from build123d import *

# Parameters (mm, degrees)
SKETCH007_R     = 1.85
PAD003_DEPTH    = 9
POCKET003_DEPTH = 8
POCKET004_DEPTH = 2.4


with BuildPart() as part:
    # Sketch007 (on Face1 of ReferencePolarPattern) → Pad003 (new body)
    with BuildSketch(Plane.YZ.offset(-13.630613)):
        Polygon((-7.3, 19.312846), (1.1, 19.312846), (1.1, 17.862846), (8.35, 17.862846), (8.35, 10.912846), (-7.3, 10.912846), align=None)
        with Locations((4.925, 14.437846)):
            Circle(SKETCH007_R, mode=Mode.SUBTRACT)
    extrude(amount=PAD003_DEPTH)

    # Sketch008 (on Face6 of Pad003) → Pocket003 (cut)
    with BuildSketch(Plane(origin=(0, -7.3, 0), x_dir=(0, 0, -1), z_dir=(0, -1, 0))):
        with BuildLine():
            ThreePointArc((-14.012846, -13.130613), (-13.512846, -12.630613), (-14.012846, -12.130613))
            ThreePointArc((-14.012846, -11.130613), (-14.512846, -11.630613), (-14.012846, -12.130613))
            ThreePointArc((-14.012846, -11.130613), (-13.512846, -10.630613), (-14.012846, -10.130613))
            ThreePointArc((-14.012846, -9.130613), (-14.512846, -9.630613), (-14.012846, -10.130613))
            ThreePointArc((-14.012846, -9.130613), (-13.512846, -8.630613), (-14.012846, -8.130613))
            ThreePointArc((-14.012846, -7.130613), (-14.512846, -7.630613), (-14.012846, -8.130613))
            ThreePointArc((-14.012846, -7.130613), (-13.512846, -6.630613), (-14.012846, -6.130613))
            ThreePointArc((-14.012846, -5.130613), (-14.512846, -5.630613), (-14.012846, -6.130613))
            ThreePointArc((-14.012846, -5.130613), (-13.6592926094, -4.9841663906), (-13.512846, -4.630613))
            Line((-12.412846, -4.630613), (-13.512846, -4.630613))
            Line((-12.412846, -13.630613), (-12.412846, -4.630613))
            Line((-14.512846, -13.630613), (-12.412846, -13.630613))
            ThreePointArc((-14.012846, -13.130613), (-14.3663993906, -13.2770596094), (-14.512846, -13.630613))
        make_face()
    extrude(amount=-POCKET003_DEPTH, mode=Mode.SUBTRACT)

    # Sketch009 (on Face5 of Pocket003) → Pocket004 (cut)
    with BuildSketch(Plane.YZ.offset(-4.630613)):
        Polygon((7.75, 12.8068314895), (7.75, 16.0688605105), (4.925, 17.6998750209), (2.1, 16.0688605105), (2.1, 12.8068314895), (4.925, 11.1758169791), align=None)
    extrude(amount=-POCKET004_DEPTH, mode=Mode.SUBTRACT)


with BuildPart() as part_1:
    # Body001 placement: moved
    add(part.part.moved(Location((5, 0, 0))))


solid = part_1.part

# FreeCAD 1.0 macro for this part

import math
import FreeCAD as App
import Part
import Sketcher

V = App.Vector
Q = App.Units.Quantity

doc = App.newDocument("Part")
body = doc.addObject("PartDesign::Body", "Body")

# Sketch on YZ plane
sketch1 = doc.addObject("Sketcher::SketchObject", "Sketch")
body.addObject(sketch1)
sketch1.AttachmentSupport = (doc.YZ_Plane, [""])
sketch1.MapMode = "FlatFace"
sketch1.AttachmentOffset = App.Placement(V(0, 0, -13.630613), App.Rotation())
sketch1.addGeometry([
    Part.LineSegment(V(1.1, 19.3, 0), V(-7.3, 19.3, 0)),  # 0
    Part.LineSegment(V(-7.3, 19.3, 0), V(-7.3, 10.9, 0)),  # 1
    Part.LineSegment(V(-7.3, 10.9, 0), V(8.3, 10.9, 0)),  # 2
    Part.LineSegment(V(8.3, 10.9, 0), V(8.3, 17.9, 0)),  # 3
    Part.LineSegment(V(8.3, 17.9, 0), V(1.1, 17.9, 0)),  # 4
    Part.LineSegment(V(1.1, 17.9, 0), V(1.1, 19.3, 0)),  # 5
    Part.Circle(V(4.9, 14.4, 0), V(0, 0, 1), 1.9),  # 6
], False)
sketch1.addConstraint([
    Sketcher.Constraint("Coincident", 0, 2, 1, 1),
    Sketcher.Constraint("Coincident", 1, 2, 2, 1),
    Sketcher.Constraint("Coincident", 2, 2, 3, 1),
    Sketcher.Constraint("Coincident", 3, 2, 4, 1),
    Sketcher.Constraint("Coincident", 4, 2, 5, 1),
    Sketcher.Constraint("Coincident", 5, 2, 0, 1),
    Sketcher.Constraint("Horizontal", 0),
    Sketcher.Constraint("Vertical", 1),
    Sketcher.Constraint("Horizontal", 2),
    Sketcher.Constraint("Vertical", 3),
    Sketcher.Constraint("Horizontal", 4),
    Sketcher.Constraint("Vertical", 5),
    Sketcher.Constraint("Equal", 0, 1),
    Sketcher.Constraint("Diameter", 6, Q("3.7 mm")),
    Sketcher.Constraint("DistanceX", 0, 2, 0, 1, Q("8.4 mm")),
    Sketcher.Constraint("DistanceX", 2, 1, 2, 2, Q("15.65 mm")),
    Sketcher.Constraint("DistanceY", 3, 1, 3, 2, Q("6.95 mm")),
    Sketcher.Constraint("DistanceX", 0, 2, -1, 1, Q("7.3 mm")),
    Sketcher.Constraint("DistanceX", -1, 1, 6, 3, Q("4.925 mm")),
    Sketcher.Constraint("DistanceY", 6, 3, 0, 2, Q("4.875 mm")),
    Sketcher.Constraint("DistanceY", -1, 1, 6, 3, Q("14.437846 mm")),
])
pad1 = doc.addObject("PartDesign::Pad", "Pad")
body.addObject(pad1)
pad1.Profile = sketch1
pad1.Length = 9

# Sketch on XZ plane
sketch2 = doc.addObject("Sketcher::SketchObject", "Sketch001")
body.addObject(sketch2)
sketch2.AttachmentSupport = (doc.XZ_Plane, [""])
sketch2.MapMode = "FlatFace"
sketch2.AttachmentOffset = App.Placement(V(0, 0, 7.3), App.Rotation())
sketch2.addGeometry([
    Part.ArcOfCircle(Part.Circle(V(-12.6, 14, 0), V(0, 0, 1), 0.5), math.radians(180), math.radians(360)),  # 0
    Part.ArcOfCircle(Part.Circle(V(-13.6, 14, 0), V(0, 0, 1), 0.5), math.radians(0), math.radians(90)),  # 1
    Part.LineSegment(V(-13.6, 14.5, 0), V(-13.6, 12.4, 0)),  # 2
    Part.LineSegment(V(-13.6, 12.4, 0), V(-4.6, 12.4, 0)),  # 3
    Part.LineSegment(V(-4.6, 12.4, 0), V(-4.6, 13.5, 0)),  # 4
    Part.ArcOfCircle(Part.Circle(V(-4.6, 14, 0), V(0, 0, 1), 0.5), math.radians(180), math.radians(270)),  # 5
    Part.ArcOfCircle(Part.Circle(V(-5.6, 14, 0), V(0, 0, 1), 0.5), math.radians(0), math.radians(180)),  # 6
    Part.ArcOfCircle(Part.Circle(V(-6.6, 14, 0), V(0, 0, 1), 0.5), math.radians(180), math.radians(360)),  # 7
    Part.ArcOfCircle(Part.Circle(V(-7.6, 14, 0), V(0, 0, 1), 0.5), math.radians(0), math.radians(180)),  # 8
    Part.ArcOfCircle(Part.Circle(V(-8.6, 14, 0), V(0, 0, 1), 0.5), math.radians(180), math.radians(360)),  # 9
    Part.ArcOfCircle(Part.Circle(V(-9.6, 14, 0), V(0, 0, 1), 0.5), math.radians(0), math.radians(180)),  # 10
    Part.ArcOfCircle(Part.Circle(V(-10.6, 14, 0), V(0, 0, 1), 0.5), math.radians(180), math.radians(360)),  # 11
    Part.ArcOfCircle(Part.Circle(V(-11.6, 14, 0), V(0, 0, 1), 0.5), math.radians(0), math.radians(180)),  # 12
], False)
sketch2.addConstraint([
    Sketcher.Constraint("Tangent", 0, 1, 1, 1),
    Sketcher.Constraint("Coincident", 1, 2, 2, 1),
    Sketcher.Constraint("Coincident", 2, 2, 3, 1),
    Sketcher.Constraint("Coincident", 3, 2, 4, 1),
    Sketcher.Constraint("Coincident", 4, 2, 5, 2),
    Sketcher.Constraint("Tangent", 5, 1, 6, 1),
    Sketcher.Constraint("Tangent", 6, 2, 7, 2),
    Sketcher.Constraint("Tangent", 7, 1, 8, 1),
    Sketcher.Constraint("Tangent", 8, 2, 9, 2),
    Sketcher.Constraint("Tangent", 9, 1, 10, 1),
    Sketcher.Constraint("Tangent", 10, 2, 11, 2),
    Sketcher.Constraint("Tangent", 11, 1, 12, 1),
    Sketcher.Constraint("Tangent", 12, 2, 0, 2),
    Sketcher.Constraint("Vertical", 2),
    Sketcher.Constraint("Horizontal", 3),
    Sketcher.Constraint("Vertical", 4),
    Sketcher.Constraint("Equal", 0, 1),
    Sketcher.Constraint("Equal", 1, 5),
    Sketcher.Constraint("Equal", 5, 6),
    Sketcher.Constraint("Equal", 6, 7),
    Sketcher.Constraint("Equal", 7, 8),
    Sketcher.Constraint("Equal", 8, 9),
    Sketcher.Constraint("Equal", 9, 10),
    Sketcher.Constraint("Equal", 10, 11),
    Sketcher.Constraint("Equal", 11, 12),
    Sketcher.Constraint("Horizontal", 0, 3, 1, 3),
    Sketcher.Constraint("Horizontal", 1, 3, 5, 3),
    Sketcher.Constraint("Horizontal", 5, 3, 6, 3),
    Sketcher.Constraint("Horizontal", 6, 3, 7, 3),
    Sketcher.Constraint("Horizontal", 7, 3, 8, 3),
    Sketcher.Constraint("Horizontal", 8, 3, 9, 3),
    Sketcher.Constraint("Horizontal", 9, 3, 10, 3),
    Sketcher.Constraint("Horizontal", 10, 3, 11, 3),
    Sketcher.Constraint("Horizontal", 11, 3, 12, 3),
    Sketcher.Constraint("Vertical", 5, 3, 3, 2),
    Sketcher.Constraint("Radius", 0, Q("0.5 mm")),
    Sketcher.Constraint("DistanceX", 3, 1, 3, 2, Q("9 mm")),
    Sketcher.Constraint("DistanceY", 2, 2, 2, 1, Q("2.1 mm")),
    Sketcher.Constraint("DistanceX", 0, 3, -1, 1, Q("12.630613 mm")),
    Sketcher.Constraint("DistanceY", -1, 1, 0, 3, Q("14.012846 mm")),
])
pocket1 = doc.addObject("PartDesign::Pocket", "Pocket")
body.addObject(pocket1)
pocket1.Profile = sketch2
pocket1.Length = 8

# Sketch on YZ plane
sketch3 = doc.addObject("Sketcher::SketchObject", "Sketch002")
body.addObject(sketch3)
sketch3.AttachmentSupport = (doc.YZ_Plane, [""])
sketch3.MapMode = "FlatFace"
sketch3.AttachmentOffset = App.Placement(V(0, 0, -4.630613), App.Rotation())
sketch3.addGeometry([
    Part.LineSegment(V(7.8, 12.8, 0), V(7.8, 16.1, 0)),  # 0
    Part.LineSegment(V(7.8, 16.1, 0), V(4.9, 17.7, 0)),  # 1
    Part.LineSegment(V(4.9, 17.7, 0), V(2.1, 16.1, 0)),  # 2
    Part.LineSegment(V(2.1, 16.1, 0), V(2.1, 12.8, 0)),  # 3
    Part.LineSegment(V(2.1, 12.8, 0), V(4.9, 11.2, 0)),  # 4
    Part.LineSegment(V(4.9, 11.2, 0), V(7.8, 12.8, 0)),  # 5
], False)
sketch3.addConstraint([
    Sketcher.Constraint("Coincident", 0, 2, 1, 1),
    Sketcher.Constraint("Coincident", 1, 2, 2, 1),
    Sketcher.Constraint("Coincident", 2, 2, 3, 1),
    Sketcher.Constraint("Coincident", 3, 2, 4, 1),
    Sketcher.Constraint("Coincident", 4, 2, 5, 1),
    Sketcher.Constraint("Coincident", 5, 2, 0, 1),
    Sketcher.Constraint("Vertical", 0),
    Sketcher.Constraint("Vertical", 3),
    Sketcher.Constraint("Parallel", 1, 4),
    Sketcher.Constraint("Parallel", 2, 5),
    Sketcher.Constraint("Horizontal", 0, 2, 2, 2),
    Sketcher.Constraint("Horizontal", 3, 2, 5, 2),
    Sketcher.Constraint("Vertical", 1, 2, 4, 2),
    Sketcher.Constraint("Angle", 1, Q("150 deg")),
    Sketcher.Constraint("DistanceX", -1, 1, 2, 2, Q("2.1 mm")),
    Sketcher.Constraint("DistanceX", -1, 1, 0, 2, Q("7.75 mm")),
    Sketcher.Constraint("DistanceY", 0, 1, 0, 2, Q("3.262029 mm")),
    Sketcher.Constraint("DistanceY", -1, 1, 0, 2, Q("16.068861 mm")),
])
pocket2 = doc.addObject("PartDesign::Pocket", "Pocket001")
body.addObject(pocket2)
pocket2.Profile = sketch3
pocket2.Length = 2.4
body2 = doc.addObject("PartDesign::Body", "Body001")
doc.recompute()

body.Placement = App.Placement(V(5, 0, 0), App.Rotation(V(0, 0, 1), 0))
boolean = doc.addObject("PartDesign::Boolean", "Boolean")
body2.addObject(boolean)
boolean.Type = "Fuse"
boolean.addObjects([body])

doc.recompute()
